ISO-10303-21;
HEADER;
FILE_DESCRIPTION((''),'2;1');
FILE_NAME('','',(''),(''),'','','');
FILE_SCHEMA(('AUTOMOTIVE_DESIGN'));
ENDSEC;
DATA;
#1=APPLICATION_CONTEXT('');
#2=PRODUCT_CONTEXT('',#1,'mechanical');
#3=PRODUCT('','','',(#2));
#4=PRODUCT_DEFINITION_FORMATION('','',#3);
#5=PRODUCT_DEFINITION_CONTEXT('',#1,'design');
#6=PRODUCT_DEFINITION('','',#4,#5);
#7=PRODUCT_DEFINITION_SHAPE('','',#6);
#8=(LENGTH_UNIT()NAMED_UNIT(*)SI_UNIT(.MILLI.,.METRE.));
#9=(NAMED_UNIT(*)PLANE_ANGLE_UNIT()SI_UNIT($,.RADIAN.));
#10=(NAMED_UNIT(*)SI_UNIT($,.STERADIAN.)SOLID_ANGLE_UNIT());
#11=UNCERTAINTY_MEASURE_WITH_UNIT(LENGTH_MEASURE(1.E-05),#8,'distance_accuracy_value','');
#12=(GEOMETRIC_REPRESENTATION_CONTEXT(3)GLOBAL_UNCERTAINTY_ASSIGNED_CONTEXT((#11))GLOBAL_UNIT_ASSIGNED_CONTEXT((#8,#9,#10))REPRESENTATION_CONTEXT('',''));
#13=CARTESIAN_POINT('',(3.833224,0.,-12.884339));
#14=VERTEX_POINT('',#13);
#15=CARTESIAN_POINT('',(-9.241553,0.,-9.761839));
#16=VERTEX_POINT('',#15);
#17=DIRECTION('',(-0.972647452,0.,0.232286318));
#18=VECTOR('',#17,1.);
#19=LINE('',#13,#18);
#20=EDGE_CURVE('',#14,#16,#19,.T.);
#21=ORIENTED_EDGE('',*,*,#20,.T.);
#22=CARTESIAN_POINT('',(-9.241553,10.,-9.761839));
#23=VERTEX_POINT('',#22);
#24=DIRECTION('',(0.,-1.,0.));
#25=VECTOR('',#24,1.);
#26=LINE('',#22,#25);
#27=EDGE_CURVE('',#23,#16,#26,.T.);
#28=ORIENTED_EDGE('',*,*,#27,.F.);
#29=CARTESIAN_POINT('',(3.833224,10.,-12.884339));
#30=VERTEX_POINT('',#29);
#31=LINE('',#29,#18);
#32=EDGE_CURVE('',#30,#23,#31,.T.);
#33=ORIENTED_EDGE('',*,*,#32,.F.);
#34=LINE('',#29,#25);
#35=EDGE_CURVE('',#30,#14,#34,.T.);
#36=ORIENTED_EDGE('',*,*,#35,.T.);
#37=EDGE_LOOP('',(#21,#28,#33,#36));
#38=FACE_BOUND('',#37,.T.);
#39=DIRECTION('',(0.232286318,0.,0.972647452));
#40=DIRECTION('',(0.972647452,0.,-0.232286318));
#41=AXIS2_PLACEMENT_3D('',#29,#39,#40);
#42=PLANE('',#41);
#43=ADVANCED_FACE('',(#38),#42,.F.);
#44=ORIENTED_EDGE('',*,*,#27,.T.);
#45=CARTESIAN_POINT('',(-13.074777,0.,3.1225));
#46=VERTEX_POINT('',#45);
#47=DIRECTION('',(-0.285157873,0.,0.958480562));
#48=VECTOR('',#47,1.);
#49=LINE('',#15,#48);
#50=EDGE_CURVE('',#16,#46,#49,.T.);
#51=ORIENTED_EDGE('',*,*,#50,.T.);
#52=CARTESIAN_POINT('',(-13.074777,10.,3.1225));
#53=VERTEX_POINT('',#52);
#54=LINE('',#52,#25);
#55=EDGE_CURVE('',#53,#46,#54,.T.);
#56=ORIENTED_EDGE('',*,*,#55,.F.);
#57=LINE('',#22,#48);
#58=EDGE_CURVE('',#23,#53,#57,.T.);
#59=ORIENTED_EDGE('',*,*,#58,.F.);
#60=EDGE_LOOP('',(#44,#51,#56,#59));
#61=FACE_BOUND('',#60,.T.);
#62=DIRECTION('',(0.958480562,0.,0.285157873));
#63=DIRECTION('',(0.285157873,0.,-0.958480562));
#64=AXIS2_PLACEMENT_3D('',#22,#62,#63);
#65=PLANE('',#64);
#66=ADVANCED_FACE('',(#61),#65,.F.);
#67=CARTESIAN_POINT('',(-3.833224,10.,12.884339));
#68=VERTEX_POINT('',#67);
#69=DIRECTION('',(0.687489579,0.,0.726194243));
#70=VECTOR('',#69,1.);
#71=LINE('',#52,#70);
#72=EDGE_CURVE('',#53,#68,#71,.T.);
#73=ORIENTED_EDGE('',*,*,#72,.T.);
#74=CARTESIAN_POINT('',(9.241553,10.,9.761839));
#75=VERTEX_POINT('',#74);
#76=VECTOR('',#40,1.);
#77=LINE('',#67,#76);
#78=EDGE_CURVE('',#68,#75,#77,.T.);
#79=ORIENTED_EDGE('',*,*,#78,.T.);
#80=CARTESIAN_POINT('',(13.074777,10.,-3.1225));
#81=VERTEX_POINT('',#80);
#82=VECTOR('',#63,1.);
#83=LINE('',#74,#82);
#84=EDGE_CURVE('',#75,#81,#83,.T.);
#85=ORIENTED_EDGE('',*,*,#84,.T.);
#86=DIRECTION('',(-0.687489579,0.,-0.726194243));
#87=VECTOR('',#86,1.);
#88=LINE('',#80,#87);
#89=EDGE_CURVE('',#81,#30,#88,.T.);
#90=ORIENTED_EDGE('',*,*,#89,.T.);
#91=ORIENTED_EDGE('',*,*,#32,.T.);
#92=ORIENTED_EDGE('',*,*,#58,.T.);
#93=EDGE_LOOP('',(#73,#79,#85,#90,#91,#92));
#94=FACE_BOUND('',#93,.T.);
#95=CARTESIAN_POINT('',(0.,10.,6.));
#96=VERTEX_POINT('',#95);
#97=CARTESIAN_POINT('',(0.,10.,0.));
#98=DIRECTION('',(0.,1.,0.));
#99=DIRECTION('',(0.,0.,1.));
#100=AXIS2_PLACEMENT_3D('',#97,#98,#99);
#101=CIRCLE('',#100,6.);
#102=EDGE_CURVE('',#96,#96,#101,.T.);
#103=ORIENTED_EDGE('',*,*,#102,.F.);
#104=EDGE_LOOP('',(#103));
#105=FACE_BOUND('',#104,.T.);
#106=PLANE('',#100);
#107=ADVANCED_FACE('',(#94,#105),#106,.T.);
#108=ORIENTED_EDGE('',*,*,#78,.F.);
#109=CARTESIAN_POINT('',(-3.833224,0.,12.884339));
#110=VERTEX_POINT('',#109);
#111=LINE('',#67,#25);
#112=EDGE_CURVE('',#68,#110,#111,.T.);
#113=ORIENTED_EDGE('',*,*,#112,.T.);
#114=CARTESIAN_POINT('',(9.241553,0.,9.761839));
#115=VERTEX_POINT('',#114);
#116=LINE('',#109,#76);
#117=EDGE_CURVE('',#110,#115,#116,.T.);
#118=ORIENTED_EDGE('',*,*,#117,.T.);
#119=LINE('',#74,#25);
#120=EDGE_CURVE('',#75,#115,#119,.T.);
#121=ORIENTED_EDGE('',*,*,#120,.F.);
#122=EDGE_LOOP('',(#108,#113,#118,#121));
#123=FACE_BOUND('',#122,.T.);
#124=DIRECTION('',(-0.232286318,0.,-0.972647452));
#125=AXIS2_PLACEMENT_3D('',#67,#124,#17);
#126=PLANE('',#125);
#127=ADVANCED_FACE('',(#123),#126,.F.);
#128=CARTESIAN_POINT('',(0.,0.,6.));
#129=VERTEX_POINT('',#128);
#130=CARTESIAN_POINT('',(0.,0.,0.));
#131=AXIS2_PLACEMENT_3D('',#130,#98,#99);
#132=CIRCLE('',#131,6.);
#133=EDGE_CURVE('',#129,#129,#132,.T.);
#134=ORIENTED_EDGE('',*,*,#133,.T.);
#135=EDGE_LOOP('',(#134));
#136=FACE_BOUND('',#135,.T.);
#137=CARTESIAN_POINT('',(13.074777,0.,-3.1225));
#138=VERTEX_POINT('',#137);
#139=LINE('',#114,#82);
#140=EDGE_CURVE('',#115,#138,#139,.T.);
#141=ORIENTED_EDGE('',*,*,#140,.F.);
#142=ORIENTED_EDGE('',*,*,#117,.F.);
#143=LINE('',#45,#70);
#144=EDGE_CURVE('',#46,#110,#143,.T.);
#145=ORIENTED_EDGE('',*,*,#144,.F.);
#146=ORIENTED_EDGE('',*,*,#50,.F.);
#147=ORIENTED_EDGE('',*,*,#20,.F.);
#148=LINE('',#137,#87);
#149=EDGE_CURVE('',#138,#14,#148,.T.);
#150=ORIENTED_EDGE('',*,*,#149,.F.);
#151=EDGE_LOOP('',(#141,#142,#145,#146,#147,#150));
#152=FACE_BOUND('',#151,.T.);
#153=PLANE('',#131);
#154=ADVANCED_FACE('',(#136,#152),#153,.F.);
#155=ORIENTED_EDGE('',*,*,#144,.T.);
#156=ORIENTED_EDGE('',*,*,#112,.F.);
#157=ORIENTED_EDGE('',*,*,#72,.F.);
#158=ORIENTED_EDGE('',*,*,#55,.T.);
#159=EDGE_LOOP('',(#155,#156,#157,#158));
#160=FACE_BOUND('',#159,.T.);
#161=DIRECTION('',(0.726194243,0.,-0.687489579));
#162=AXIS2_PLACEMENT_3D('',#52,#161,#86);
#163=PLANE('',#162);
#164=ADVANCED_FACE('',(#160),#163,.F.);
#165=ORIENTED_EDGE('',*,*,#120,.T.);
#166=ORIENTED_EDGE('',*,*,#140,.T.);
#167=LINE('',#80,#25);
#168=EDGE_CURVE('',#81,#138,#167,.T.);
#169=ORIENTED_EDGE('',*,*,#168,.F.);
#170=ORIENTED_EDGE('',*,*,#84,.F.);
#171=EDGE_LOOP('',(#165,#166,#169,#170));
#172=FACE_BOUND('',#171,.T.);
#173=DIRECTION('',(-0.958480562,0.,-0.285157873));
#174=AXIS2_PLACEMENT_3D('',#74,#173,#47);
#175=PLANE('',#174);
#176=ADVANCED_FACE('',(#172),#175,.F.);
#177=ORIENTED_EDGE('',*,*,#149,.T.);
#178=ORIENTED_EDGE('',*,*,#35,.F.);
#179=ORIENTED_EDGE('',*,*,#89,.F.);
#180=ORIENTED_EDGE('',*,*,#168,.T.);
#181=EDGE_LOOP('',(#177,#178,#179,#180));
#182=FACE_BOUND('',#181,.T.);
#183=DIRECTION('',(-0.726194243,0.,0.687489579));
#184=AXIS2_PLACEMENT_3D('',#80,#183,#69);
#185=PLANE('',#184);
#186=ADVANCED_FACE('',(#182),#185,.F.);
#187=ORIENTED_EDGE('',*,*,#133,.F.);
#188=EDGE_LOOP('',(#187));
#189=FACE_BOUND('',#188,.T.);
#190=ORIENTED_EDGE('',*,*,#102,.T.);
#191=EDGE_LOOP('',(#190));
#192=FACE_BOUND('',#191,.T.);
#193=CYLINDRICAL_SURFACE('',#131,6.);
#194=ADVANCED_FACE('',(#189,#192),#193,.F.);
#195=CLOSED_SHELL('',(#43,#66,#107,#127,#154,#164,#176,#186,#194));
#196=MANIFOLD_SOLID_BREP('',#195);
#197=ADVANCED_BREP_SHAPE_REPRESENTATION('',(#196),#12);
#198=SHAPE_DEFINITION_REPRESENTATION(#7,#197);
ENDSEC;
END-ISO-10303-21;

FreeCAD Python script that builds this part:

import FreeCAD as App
import Part
import Sketcher
from FreeCAD import Vector


def add_polygon(sketch, points):
    """Adds a closed chain of lines whose ends are joined by coincident constraints."""
    first, n = sketch.GeometryCount, len(points)
    for a, b in zip(points, points[1:] + points[:1]):
        sketch.addGeometry(Part.LineSegment(App.Vector(*a, 0), App.Vector(*b, 0)), False)
    for i in range(n):
        sketch.addConstraint(Sketcher.Constraint("Coincident", first + i, 2, first + (i + 1) % n, 1))

doc = App.newDocument("Part")
body = doc.addObject("PartDesign::Body", "Body")

# Sketch on XZ plane
sketch1 = body.newObject("Sketcher::SketchObject", "Sketch")
sketch1.AttachmentSupport = (doc.getObject("XZ_Plane"), [""])
sketch1.MapMode = "FlatFace"
add_polygon(sketch1, [(9, 10), (13, -3), (4, -13), (-9, -10), (-13, 3), (-4, 13)])  # lines 0-5
sketch1.addConstraint([
    Sketcher.Constraint("Symmetric", 0, 2, 3, 2, -1, 1),
    Sketcher.Constraint("Symmetric", 1, 2, 4, 2, -1, 1),
    Sketcher.Constraint("Symmetric", 2, 2, 5, 2, -1, 1),
    Sketcher.Constraint("Equal", 0, 1),
    Sketcher.Constraint("Equal", 1, 2),
    Sketcher.Constraint("DistanceX", 3, 2, 1, 2, 16.908001),
    Sketcher.Constraint("DistanceY", 0, 2, 3, 2, 6.245),
    Sketcher.Constraint("DistanceY", 1, 2, 2, 2, 3.1225),
    Sketcher.Constraint("DistanceY", 1, 2, -1, 1, 12.884339),
])
pad1 = body.newObject("PartDesign::Pad", "Pad")
pad1.Profile = sketch1
pad1.Length = 10
pad1.Reversed = True

# Sketch on XZ plane
sketch2 = body.newObject("Sketcher::SketchObject", "Sketch001")
sketch2.AttachmentSupport = (doc.getObject("XZ_Plane"), [""])
sketch2.MapMode = "FlatFace"
sketch2.AttachmentOffset = App.Placement(Vector(0, 0, -10), App.Rotation())
sketch2.addGeometry(Part.Circle(Vector(0, 0, 0), Vector(0, 0, 1), 6), False)
sketch2.addConstraint([
    Sketcher.Constraint("Coincident", 0, 3, -1, 1),
    Sketcher.Constraint("Diameter", 0, 12.0),
])
pocket1 = body.newObject("PartDesign::Pocket", "Pocket")
pocket1.Profile = sketch2
pocket1.Type = "ThroughAll"
pocket1.Reversed = True

doc.recompute()
